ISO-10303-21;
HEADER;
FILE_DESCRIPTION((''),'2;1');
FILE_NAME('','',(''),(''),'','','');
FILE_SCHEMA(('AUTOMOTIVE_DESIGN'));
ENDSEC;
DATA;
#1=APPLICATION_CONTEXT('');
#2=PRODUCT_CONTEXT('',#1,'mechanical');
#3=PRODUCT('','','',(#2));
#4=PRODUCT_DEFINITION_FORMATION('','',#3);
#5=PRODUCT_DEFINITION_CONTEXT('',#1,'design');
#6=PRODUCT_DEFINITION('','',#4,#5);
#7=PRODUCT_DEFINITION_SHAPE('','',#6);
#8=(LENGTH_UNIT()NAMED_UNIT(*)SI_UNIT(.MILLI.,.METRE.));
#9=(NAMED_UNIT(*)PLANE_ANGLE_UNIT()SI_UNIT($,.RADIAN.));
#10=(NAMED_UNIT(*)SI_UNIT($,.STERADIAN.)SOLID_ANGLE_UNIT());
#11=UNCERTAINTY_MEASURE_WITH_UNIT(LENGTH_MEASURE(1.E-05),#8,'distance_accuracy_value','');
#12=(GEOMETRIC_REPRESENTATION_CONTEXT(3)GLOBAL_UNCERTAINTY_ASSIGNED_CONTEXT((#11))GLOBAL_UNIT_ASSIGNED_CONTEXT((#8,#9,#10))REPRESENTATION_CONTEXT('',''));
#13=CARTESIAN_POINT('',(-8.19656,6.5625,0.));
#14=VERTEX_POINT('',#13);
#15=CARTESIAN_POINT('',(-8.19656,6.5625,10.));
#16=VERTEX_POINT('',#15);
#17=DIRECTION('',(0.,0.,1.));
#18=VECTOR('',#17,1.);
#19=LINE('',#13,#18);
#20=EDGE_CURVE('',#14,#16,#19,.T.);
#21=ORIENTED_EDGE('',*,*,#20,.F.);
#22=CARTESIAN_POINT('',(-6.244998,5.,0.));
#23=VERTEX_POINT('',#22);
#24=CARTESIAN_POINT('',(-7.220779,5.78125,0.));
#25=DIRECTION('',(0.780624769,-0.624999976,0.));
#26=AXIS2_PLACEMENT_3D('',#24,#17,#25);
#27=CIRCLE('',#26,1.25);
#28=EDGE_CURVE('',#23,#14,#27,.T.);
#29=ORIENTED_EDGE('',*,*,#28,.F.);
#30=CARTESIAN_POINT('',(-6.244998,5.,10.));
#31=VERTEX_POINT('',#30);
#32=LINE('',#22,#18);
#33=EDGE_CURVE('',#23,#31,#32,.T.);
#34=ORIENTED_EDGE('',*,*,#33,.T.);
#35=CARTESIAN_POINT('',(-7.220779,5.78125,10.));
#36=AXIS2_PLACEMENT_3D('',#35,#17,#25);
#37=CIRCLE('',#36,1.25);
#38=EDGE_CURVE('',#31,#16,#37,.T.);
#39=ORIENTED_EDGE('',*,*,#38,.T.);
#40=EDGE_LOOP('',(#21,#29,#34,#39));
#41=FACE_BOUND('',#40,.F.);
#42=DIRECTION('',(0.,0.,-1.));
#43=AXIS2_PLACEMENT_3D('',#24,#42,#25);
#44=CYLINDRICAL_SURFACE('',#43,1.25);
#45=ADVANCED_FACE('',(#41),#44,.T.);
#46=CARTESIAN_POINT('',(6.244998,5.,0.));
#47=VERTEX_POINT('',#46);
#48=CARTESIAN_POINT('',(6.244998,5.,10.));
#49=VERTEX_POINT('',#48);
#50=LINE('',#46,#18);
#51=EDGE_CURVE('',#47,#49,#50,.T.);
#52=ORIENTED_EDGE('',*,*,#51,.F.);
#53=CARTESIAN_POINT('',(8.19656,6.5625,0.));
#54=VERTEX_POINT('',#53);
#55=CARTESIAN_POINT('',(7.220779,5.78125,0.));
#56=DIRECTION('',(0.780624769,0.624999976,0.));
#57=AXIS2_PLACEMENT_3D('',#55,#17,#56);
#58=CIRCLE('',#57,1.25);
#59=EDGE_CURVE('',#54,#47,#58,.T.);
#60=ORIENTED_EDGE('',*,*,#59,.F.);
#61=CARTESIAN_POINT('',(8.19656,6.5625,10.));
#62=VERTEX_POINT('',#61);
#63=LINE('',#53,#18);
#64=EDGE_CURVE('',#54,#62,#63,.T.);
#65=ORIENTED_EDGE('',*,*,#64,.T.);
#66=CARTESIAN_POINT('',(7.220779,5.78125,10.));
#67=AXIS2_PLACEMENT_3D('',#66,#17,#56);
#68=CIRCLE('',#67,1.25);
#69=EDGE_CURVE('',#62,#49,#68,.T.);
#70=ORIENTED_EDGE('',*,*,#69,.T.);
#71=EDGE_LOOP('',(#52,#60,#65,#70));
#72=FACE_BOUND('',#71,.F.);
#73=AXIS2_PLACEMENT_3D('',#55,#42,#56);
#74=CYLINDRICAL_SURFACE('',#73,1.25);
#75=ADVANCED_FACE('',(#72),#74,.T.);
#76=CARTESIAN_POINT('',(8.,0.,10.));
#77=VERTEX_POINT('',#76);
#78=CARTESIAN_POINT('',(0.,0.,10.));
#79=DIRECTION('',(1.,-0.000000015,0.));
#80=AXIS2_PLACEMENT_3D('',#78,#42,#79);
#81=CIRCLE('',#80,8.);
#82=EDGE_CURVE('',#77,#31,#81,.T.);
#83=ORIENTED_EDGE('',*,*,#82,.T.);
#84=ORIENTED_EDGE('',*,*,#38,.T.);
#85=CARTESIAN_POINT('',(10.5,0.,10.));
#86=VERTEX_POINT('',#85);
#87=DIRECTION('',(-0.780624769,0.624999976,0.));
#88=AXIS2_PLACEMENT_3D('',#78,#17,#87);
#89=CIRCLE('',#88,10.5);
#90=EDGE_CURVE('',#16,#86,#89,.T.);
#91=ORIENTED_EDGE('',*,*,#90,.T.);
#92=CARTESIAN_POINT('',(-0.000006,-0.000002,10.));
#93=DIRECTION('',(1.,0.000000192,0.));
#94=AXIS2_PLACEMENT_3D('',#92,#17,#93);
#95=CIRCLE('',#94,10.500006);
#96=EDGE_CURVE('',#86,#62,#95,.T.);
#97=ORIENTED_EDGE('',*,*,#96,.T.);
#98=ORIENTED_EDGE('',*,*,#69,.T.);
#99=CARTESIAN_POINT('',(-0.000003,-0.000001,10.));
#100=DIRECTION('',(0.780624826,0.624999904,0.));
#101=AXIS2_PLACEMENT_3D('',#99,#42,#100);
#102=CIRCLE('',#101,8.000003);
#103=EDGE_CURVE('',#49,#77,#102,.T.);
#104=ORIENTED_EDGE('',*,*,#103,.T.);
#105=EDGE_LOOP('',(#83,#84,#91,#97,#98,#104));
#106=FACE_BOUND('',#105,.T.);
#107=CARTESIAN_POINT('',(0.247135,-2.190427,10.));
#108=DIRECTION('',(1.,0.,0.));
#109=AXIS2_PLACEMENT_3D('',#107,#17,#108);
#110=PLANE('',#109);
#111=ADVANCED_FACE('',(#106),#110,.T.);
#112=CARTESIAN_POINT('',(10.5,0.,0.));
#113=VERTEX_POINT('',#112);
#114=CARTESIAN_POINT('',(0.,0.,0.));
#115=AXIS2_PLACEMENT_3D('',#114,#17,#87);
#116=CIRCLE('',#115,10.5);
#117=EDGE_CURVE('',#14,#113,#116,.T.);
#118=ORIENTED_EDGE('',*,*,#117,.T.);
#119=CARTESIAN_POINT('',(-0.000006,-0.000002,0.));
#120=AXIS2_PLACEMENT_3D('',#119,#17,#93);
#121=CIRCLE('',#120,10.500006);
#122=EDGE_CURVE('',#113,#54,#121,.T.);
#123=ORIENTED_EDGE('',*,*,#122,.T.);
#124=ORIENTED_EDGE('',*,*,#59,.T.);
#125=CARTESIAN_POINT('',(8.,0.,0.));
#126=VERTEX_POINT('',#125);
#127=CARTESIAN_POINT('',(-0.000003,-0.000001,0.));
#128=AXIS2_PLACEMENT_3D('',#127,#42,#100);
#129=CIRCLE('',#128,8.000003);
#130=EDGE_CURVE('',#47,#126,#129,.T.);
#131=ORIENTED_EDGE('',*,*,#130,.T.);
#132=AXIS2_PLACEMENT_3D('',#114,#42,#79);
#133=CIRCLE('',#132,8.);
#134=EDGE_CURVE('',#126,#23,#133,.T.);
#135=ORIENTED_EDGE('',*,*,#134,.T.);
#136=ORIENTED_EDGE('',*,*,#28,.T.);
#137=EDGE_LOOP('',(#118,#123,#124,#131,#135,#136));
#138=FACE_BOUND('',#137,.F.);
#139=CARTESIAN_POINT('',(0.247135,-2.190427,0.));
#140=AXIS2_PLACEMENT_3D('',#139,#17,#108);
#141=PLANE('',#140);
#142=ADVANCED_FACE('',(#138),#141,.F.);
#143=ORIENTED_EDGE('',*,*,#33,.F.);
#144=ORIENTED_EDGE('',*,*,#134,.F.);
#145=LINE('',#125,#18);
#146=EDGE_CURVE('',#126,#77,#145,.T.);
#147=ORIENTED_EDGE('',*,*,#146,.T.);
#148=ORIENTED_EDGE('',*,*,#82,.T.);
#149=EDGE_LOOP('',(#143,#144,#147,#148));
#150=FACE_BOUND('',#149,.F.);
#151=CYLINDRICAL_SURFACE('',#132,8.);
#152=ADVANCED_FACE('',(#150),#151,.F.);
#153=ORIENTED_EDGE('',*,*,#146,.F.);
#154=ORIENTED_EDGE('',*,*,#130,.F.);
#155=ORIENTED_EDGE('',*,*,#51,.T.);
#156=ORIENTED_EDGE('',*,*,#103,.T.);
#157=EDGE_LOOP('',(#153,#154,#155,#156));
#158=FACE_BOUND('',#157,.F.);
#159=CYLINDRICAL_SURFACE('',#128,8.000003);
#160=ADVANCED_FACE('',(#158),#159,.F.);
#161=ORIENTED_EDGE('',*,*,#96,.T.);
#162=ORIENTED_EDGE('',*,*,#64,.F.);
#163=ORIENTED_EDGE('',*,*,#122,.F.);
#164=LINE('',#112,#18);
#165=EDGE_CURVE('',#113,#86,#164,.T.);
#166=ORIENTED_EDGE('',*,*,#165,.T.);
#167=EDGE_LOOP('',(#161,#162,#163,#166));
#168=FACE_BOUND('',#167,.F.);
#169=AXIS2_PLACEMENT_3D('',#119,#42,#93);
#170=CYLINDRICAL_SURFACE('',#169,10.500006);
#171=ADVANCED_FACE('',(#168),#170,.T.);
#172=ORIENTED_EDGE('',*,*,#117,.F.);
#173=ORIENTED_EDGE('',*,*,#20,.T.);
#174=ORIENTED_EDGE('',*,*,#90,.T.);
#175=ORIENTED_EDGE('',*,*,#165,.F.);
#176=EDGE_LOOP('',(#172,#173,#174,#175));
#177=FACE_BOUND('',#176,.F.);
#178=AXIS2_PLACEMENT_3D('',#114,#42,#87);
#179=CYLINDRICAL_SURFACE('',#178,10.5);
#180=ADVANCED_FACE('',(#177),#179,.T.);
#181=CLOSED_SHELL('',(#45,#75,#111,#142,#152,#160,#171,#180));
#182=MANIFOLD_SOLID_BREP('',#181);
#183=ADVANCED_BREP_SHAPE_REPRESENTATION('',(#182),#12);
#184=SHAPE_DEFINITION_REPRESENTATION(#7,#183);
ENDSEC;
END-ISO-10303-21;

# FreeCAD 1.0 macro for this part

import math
import FreeCAD as App
import Part
import Sketcher
from FreeCAD import Vector

doc = App.newDocument("Part")
body = doc.addObject("PartDesign::Body", "Body")

sketch1 = body.newObject("Sketcher::SketchObject", "Sketch")
sketch1.AttachmentSupport = (doc.getObject("XY_Plane"), [""])
sketch1.MapMode = "FlatFace"
sketch1.addGeometry(Part.ArcOfCircle(Part.Circle(Vector(0, 0, 0), Vector(0, 0, 1), 10.5), math.radians(0), math.radians(39)), False)
sketch1.addGeometry(Part.ArcOfCircle(Part.Circle(Vector(7.2, 5.8, 0), Vector(0, 0, 1), 1.3), math.radians(39), math.radians(219)), False)
sketch1.addGeometry(Part.ArcOfCircle(Part.Circle(Vector(0, 0, 0), Vector(0, 0, 1), 8), math.radians(0), math.radians(39)), False)
sketch1.addGeometry(Part.ArcOfCircle(Part.Circle(Vector(0, 0, 0), Vector(0, 0, 1), 8), math.radians(141), math.radians(360)), False)
sketch1.addGeometry(Part.ArcOfCircle(Part.Circle(Vector(-7.2, 5.8, 0), Vector(0, 0, 1), 1.3), math.radians(-39), math.radians(141)), False)
sketch1.addGeometry(Part.ArcOfCircle(Part.Circle(Vector(0, 0, 0), Vector(0, 0, 1), 10.5), math.radians(141), math.radians(360)), False)
sketch1.addConstraint(Sketcher.Constraint("Tangent", 0, 2, 1, 1))
sketch1.addConstraint(Sketcher.Constraint("Tangent", 1, 2, 2, 2))
sketch1.addConstraint(Sketcher.Constraint("Tangent", 2, 1, 3, 2))
sketch1.addConstraint(Sketcher.Constraint("Tangent", 3, 1, 4, 1))
sketch1.addConstraint(Sketcher.Constraint("Tangent", 4, 2, 5, 1))
sketch1.addConstraint(Sketcher.Constraint("Tangent", 5, 2, 0, 1))
sketch1.addConstraint(Sketcher.Constraint("Coincident", 0, 3, -1, 1))
sketch1.addConstraint(Sketcher.Constraint("Coincident", 2, 3, -1, 1))
sketch1.addConstraint(Sketcher.Constraint("Equal", 1, 4))
sketch1.addConstraint(Sketcher.Constraint("Symmetric", 1, 3, 4, 3, -2))
sketch1.addConstraint(Sketcher.Constraint("PointOnObject", 2, 1, -1))
sketch1.addConstraint(Sketcher.Constraint("PointOnObject", 5, 2, -1))
sketch1.addConstraint(Sketcher.Constraint("Radius", 3, 8.0))
sketch1.addConstraint(Sketcher.Constraint("Radius", 5, 10.5))
sketch1.addConstraint(Sketcher.Constraint("DistanceY", -1, 1, 1, 2, 5.0))
pad1 = body.newObject("PartDesign::Pad", "Pad")
pad1.Profile = sketch1
pad1.Length = 10

doc.recompute()
